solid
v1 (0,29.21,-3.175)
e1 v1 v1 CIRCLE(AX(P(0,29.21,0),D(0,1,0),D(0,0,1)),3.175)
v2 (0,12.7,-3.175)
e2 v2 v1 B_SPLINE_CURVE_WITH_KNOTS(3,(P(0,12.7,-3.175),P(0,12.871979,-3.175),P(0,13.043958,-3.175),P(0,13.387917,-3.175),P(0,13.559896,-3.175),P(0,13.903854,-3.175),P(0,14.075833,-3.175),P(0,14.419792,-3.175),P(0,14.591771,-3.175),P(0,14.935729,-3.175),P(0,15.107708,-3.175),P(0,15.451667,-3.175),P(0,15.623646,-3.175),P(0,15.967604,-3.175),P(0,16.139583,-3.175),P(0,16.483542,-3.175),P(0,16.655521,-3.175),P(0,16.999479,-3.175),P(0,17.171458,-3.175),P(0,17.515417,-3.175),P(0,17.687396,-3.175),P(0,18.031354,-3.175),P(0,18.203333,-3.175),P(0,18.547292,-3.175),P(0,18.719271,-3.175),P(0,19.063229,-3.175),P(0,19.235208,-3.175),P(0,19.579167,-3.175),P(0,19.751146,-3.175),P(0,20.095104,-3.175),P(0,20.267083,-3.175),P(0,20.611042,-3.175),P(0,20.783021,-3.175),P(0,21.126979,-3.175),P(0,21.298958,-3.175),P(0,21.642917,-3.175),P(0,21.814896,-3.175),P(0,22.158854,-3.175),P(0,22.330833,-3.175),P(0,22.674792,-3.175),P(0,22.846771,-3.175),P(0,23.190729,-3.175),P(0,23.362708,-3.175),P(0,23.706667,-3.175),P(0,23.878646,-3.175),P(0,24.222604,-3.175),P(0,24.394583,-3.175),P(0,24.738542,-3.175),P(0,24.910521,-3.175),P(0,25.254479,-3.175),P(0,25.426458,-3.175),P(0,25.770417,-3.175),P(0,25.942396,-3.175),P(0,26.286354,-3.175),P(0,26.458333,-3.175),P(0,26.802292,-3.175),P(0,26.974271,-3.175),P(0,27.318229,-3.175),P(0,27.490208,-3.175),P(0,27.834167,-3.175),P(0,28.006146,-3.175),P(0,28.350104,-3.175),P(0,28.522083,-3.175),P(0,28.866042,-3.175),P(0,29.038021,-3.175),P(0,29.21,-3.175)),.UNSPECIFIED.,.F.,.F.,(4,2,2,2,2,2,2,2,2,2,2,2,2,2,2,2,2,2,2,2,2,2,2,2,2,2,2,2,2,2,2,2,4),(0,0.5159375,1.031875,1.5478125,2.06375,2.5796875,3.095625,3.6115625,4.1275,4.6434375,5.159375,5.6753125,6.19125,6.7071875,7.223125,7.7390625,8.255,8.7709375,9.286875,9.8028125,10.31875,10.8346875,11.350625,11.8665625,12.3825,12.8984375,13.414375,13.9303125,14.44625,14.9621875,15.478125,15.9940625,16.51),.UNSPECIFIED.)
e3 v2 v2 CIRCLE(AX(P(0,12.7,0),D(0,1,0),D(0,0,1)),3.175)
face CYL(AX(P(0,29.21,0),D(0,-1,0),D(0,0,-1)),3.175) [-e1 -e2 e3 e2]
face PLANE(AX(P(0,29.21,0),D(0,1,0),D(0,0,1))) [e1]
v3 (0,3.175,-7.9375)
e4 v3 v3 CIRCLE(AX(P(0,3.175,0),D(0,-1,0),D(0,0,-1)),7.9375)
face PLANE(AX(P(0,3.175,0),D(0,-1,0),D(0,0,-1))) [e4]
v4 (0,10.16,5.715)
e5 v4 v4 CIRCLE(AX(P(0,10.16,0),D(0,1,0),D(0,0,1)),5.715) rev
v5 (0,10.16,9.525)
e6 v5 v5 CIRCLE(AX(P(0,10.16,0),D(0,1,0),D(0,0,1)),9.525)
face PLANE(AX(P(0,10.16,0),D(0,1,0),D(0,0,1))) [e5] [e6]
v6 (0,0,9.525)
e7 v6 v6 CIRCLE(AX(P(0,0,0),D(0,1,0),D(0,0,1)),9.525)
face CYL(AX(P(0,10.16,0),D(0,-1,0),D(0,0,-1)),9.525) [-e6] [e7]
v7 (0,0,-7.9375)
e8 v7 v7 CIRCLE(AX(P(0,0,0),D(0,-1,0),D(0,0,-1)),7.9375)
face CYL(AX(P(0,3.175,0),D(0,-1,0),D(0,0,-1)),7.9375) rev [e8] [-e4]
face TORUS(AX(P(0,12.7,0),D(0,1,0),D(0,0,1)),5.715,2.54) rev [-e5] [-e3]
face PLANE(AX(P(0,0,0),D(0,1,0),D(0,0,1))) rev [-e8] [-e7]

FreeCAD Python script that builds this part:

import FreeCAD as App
import Part
import Sketcher

V = App.Vector
Q = App.Units.Quantity


def edges_at(feature, points):
    """Names of the edges that pass closest to the given points."""
    edges = feature.Shape.Edges
    near = lambda p: min(range(len(edges)), key=lambda i: edges[i].distToShape(Part.Vertex(*p))[0])
    return sorted({f"Edge{near(p) + 1}" for p in points})

doc = App.newDocument("Part")
params = doc.addObject("Spreadsheet::Sheet", "Params")
for row, (alias, value) in enumerate([
    ("sketch1_diameter", "0.75 in"),
    ("pad1_length", "0.4 in"),
    ("sketch2_diameter", "0.625 in"),
    ("pocket1_length", "0.125 in"),
    ("sketch3_diameter", "0.25 in"),
    ("pad2_length", "0.75 in"),
    ("fillet_radius", "0.1 in"),
], start=1):
    params.set(f"A{row}", alias)
    params.set(f"B{row}", "=" + value)
    params.setAlias(f"B{row}", alias)

body = doc.addObject("PartDesign::Body", "Body")

# Sketch on XZ plane
sketch1 = body.newObject("Sketcher::SketchObject", "Sketch")
sketch1.AttachmentSupport = (doc.getObject("XZ_Plane"), [""])
sketch1.MapMode = "FlatFace"
sketch1.addGeometry(Part.Circle(V(0, 0, 0), V(0, 0, 1), 10), False)
sketch1.addConstraint([
    Sketcher.Constraint("Coincident", 0, 3, -1, 1),
    Sketcher.Constraint("Diameter", 0, Q("0.75 in")),
])
sketch1.setExpression("Constraints[1]", "Params.sketch1_diameter")
pad1 = body.newObject("PartDesign::Pad", "Pad")
pad1.Profile = sketch1
pad1.setExpression("Length", "Params.pad1_length")
pad1.Reversed = True

# Sketch on XZ plane
sketch2 = body.newObject("Sketcher::SketchObject", "Sketch001")
sketch2.AttachmentSupport = (doc.getObject("XZ_Plane"), [""])
sketch2.MapMode = "FlatFace"
sketch2.addGeometry(Part.Circle(V(0, 0, 0), V(0, 0, 1), 8), False)
sketch2.addConstraint([
    Sketcher.Constraint("Coincident", 0, 3, -1, 1),
    Sketcher.Constraint("Diameter", 0, Q("0.625 in")),
])
sketch2.setExpression("Constraints[1]", "Params.sketch2_diameter")
pocket1 = body.newObject("PartDesign::Pocket", "Pocket")
pocket1.Profile = sketch2
pocket1.setExpression("Length", "Params.pocket1_length")

# Sketch on XZ plane
sketch3 = body.newObject("Sketcher::SketchObject", "Sketch002")
sketch3.AttachmentSupport = (doc.getObject("XZ_Plane"), [""])
sketch3.MapMode = "FlatFace"
sketch3.AttachmentOffset = App.Placement(V(0, 0, -0.4 * 25.4), App.Rotation())
sketch3.addGeometry(Part.Circle(V(0, 0, 0), V(0, 0, 1), 3.2), False)
sketch3.addConstraint([
    Sketcher.Constraint("Coincident", 0, 3, -1, 1),
    Sketcher.Constraint("Diameter", 0, Q("0.25 in")),
])
sketch3.setExpression("Constraints[1]", "Params.sketch3_diameter")
pad2 = body.newObject("PartDesign::Pad", "Pad001")
pad2.Profile = sketch3
pad2.setExpression("Length", "Params.pad2_length")
pad2.Reversed = True
doc.recompute()

fillet = body.newObject("PartDesign::Fillet", "Fillet")
fillet.Base = (pad2, edges_at(pad2, [(0, 10.16, 3.175)]))
fillet.setExpression("Radius", "Params.fillet_radius")

doc.recompute()
